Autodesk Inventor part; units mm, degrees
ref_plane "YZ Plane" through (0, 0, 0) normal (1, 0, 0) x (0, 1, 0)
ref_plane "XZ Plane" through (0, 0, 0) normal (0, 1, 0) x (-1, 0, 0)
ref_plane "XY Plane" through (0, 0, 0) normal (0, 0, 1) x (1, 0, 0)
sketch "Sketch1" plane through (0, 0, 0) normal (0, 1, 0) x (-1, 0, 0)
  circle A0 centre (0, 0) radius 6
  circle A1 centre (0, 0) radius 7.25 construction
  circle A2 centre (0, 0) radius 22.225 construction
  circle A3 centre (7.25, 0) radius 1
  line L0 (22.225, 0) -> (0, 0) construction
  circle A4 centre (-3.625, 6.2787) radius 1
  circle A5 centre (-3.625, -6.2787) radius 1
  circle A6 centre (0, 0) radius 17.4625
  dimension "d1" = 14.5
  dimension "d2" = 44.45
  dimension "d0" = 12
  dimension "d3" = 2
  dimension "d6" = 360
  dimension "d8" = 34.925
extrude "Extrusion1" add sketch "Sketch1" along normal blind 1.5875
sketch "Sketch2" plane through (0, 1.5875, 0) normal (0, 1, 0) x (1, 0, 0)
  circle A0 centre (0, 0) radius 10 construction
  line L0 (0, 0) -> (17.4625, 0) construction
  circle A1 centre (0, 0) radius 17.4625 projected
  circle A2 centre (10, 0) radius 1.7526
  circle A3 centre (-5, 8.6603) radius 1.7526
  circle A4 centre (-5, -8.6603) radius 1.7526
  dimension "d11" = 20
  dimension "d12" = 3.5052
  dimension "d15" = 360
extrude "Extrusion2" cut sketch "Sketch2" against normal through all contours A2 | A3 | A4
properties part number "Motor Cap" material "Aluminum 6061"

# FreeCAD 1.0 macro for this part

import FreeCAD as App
import Part
import Sketcher
Q = App.Units.Quantity

doc = App.newDocument("Part")
body = doc.addObject("PartDesign::Body", "Body")

# Sketch on XZ plane
sketch1 = doc.addObject("Sketcher::SketchObject", "Sketch")
body.addObject(sketch1)
sketch1.AttachmentSupport = (doc.XZ_Plane, [""])
sketch1.MapMode = "FlatFace"
sketch1.addGeometry([
    Part.Circle(App.Vector(0, 0, 0), App.Vector(0, 0, 1), 17.5),  # 0
    Part.Circle(App.Vector(3.6, -6.3, 0), App.Vector(0, 0, 1), 1),  # 1
    Part.Circle(App.Vector(3.6, 6.3, 0), App.Vector(0, 0, 1), 1),  # 2
    Part.Circle(App.Vector(0, 0, 0), App.Vector(0, 0, 1), 6),  # 3
    Part.Circle(App.Vector(-7.2, 0, 0), App.Vector(0, 0, 1), 1),  # 4
], False)
sketch1.addConstraint([
    Sketcher.Constraint("Coincident", 0, 3, -1, 1),
    Sketcher.Constraint("Coincident", 3, 3, -1, 1),
    Sketcher.Constraint("Equal", 1, 2),
    Sketcher.Constraint("Equal", 2, 4),
    Sketcher.Constraint("Symmetric", 1, 3, 2, 3, -1),
    Sketcher.Constraint("PointOnObject", 4, 3, -1),
    Sketcher.Constraint("Diameter", 0, Q("1.375 in")),
    Sketcher.Constraint("Diameter", 1, 2.0),
    Sketcher.Constraint("Diameter", 3, 12.0),
    Sketcher.Constraint("DistanceY", 1, 3, -1, 1, Q("0.2472 in")),
    Sketcher.Constraint("DistanceX", -1, 1, 1, 3, 3.625),
    Sketcher.Constraint("DistanceX", 4, 3, -1, 1, 7.25),
])
pad1 = doc.addObject("PartDesign::Pad", "Pad")
body.addObject(pad1)
pad1.Profile = sketch1
pad1.Length = Q("0.0625 in")
pad1.Reversed = True

# Sketch on XZ plane
sketch2 = doc.addObject("Sketcher::SketchObject", "Sketch001")
body.addObject(sketch2)
sketch2.AttachmentSupport = (doc.XZ_Plane, [""])
sketch2.MapMode = "FlatFace"
sketch2.AttachmentOffset = App.Placement(App.Vector(0, 0, -0.0625 * 25.4), App.Rotation())
sketch2.addGeometry([
    Part.Circle(App.Vector(10, 0, 0), App.Vector(0, 0, 1), 1.8),
    Part.Circle(App.Vector(-5, -8.7, 0), App.Vector(0, 0, 1), 1.8),
    Part.Circle(App.Vector(-5, 8.7, 0), App.Vector(0, 0, 1), 1.8),
], False)
sketch2.addConstraint([
    Sketcher.Constraint("Equal", 0, 1),
    Sketcher.Constraint("Equal", 1, 2),
    Sketcher.Constraint("Symmetric", 1, 3, 2, 3, -1),
    Sketcher.Constraint("PointOnObject", 0, 3, -1),
    Sketcher.Constraint("Diameter", 0, Q("0.138 in")),
    Sketcher.Constraint("DistanceX", -1, 1, 0, 3, Q("0.3937 in")),
    Sketcher.Constraint("DistanceX", 1, 3, -1, 1, 5.0),
    Sketcher.Constraint("DistanceY", 1, 3, -1, 1, 8.6603),
])
pocket1 = doc.addObject("PartDesign::Pocket", "Pocket")
body.addObject(pocket1)
pocket1.Profile = sketch2
pocket1.Type = "ThroughAll"
pocket1.Reversed = True

doc.recompute()
